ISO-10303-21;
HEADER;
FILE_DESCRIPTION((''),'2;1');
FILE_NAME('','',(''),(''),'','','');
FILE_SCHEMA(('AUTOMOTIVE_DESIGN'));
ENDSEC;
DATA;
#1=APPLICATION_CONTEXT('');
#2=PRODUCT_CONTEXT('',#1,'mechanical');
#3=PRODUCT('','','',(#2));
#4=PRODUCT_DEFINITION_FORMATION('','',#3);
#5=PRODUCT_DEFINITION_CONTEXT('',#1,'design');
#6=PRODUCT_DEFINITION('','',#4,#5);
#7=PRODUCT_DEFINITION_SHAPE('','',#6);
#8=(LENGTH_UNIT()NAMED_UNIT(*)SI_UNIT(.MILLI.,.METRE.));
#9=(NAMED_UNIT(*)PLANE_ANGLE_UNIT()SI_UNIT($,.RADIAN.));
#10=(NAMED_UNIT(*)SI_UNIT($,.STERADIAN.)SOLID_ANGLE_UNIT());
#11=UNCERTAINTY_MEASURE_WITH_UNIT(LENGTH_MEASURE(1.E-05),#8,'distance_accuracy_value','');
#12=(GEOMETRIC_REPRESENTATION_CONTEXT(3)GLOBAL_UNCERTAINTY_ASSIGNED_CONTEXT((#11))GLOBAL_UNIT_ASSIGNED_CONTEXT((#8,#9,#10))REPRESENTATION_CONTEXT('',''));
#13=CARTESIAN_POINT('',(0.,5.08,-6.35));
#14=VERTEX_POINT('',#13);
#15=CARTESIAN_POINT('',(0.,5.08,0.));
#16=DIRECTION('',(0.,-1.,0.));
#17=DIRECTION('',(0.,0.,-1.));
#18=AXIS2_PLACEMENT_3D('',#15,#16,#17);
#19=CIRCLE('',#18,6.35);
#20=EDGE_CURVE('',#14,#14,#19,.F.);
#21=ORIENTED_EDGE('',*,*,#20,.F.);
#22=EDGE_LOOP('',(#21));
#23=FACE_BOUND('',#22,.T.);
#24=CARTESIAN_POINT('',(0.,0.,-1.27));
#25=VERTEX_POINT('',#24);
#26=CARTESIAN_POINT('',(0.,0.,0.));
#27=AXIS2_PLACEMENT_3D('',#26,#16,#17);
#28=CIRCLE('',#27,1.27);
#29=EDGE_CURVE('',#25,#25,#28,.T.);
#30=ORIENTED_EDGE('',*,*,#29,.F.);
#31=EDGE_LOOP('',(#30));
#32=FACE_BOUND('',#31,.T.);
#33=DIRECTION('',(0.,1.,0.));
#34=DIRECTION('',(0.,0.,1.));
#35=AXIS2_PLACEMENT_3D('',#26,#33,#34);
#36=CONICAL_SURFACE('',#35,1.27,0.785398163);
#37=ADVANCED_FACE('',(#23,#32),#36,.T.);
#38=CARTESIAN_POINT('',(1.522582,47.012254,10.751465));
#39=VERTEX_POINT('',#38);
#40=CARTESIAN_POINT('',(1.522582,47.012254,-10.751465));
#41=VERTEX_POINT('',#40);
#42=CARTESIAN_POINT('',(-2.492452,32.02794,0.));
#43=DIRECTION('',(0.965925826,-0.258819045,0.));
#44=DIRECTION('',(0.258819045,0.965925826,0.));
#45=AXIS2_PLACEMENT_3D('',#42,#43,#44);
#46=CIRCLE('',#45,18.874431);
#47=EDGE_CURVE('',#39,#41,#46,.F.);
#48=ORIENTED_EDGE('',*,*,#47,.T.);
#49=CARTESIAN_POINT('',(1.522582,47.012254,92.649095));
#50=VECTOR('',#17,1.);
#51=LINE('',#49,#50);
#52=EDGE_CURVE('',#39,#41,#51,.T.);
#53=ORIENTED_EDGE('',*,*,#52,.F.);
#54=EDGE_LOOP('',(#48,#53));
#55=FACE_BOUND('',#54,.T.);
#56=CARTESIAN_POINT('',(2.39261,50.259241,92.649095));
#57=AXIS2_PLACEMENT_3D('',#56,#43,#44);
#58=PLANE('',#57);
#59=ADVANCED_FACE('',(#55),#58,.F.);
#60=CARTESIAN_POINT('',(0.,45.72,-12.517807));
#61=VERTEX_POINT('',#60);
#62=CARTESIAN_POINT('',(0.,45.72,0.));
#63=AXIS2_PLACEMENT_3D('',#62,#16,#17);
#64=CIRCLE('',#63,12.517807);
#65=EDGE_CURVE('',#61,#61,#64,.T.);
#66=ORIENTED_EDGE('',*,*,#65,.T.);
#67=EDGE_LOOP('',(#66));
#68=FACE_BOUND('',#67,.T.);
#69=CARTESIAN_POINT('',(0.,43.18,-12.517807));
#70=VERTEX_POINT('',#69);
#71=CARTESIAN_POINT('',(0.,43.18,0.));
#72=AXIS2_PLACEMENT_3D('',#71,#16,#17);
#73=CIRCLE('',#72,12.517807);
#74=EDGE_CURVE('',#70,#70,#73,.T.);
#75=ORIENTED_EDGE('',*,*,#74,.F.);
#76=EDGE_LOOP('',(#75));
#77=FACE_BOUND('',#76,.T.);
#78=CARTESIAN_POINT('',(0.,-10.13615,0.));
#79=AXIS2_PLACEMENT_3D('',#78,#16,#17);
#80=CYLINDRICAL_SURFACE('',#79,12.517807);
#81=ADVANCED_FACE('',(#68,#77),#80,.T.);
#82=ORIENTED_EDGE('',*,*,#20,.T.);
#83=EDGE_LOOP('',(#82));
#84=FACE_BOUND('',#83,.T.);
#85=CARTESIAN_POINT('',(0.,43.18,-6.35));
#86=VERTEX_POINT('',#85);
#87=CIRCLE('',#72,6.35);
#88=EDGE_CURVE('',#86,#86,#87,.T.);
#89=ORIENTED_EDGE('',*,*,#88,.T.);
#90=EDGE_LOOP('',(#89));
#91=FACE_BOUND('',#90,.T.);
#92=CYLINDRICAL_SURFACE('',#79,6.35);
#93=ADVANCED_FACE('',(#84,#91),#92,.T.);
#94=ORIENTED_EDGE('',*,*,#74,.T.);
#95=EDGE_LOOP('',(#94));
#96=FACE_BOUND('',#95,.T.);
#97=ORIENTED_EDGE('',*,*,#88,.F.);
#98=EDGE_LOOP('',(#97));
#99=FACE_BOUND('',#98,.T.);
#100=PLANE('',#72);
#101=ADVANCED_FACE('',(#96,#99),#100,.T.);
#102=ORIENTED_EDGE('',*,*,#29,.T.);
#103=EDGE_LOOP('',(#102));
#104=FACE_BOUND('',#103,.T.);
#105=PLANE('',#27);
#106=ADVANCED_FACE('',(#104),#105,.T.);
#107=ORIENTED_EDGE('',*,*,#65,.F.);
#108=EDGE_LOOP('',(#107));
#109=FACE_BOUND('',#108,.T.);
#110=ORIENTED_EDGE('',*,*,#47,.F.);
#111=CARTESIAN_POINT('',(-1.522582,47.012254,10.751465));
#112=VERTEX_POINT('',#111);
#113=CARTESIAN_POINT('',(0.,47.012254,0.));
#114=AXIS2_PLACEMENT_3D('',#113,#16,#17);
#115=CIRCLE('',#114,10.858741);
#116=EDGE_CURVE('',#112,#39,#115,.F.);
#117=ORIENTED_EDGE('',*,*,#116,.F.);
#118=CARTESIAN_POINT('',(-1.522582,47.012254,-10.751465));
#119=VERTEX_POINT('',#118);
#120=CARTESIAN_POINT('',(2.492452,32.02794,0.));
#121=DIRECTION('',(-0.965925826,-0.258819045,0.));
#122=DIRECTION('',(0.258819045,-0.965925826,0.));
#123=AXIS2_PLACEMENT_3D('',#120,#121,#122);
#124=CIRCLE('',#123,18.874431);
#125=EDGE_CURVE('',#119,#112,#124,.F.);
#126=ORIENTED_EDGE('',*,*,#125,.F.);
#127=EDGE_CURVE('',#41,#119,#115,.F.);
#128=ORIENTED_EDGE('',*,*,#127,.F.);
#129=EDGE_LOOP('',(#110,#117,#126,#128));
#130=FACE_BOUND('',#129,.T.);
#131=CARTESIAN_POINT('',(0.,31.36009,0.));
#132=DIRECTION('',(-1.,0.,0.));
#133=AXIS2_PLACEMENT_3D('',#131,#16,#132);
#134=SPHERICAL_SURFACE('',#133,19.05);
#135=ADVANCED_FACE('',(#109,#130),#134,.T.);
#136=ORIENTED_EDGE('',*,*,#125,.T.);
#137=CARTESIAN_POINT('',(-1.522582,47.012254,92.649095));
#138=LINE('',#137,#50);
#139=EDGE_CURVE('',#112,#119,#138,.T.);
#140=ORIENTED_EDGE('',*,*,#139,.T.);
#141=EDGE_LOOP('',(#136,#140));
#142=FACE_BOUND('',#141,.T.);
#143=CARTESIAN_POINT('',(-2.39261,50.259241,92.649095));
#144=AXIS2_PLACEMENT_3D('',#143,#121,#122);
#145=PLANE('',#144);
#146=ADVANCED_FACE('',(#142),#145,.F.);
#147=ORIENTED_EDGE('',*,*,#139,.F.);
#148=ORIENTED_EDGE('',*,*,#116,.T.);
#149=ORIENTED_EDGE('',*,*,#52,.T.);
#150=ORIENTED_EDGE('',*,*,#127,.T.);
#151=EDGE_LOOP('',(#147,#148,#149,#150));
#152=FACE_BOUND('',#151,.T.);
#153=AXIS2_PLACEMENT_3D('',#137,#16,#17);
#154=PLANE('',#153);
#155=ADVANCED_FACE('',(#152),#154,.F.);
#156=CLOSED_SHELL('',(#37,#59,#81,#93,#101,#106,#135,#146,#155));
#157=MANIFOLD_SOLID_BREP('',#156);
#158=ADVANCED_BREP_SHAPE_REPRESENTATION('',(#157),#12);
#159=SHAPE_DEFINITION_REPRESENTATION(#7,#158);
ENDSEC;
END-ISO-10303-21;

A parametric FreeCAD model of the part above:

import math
import FreeCAD as App
import Part
import Sketcher
Q = App.Units.Quantity


def edges_at(feature, points):
    """Names of the edges that pass closest to the given points."""
    edges = feature.Shape.Edges
    near = lambda p: min(range(len(edges)), key=lambda i: edges[i].distToShape(Part.Vertex(*p))[0])
    return sorted({f"Edge{near(p) + 1}" for p in points})


def add_polygon(sketch, points):
    """Adds a closed chain of lines whose ends are joined by coincident constraints."""
    first, n = sketch.GeometryCount, len(points)
    for a, b in zip(points, points[1:] + points[:1]):
        sketch.addGeometry(Part.LineSegment(App.Vector(*a, 0), App.Vector(*b, 0)), False)
    for i in range(n):
        sketch.addConstraint(Sketcher.Constraint("Coincident", first + i, 2, first + (i + 1) % n, 1))

doc = App.newDocument("Part")
body = doc.addObject("PartDesign::Body", "Body")

# Sketch on XY plane
sketch1 = doc.addObject("Sketcher::SketchObject", "Sketch")
body.addObject(sketch1)
sketch1.AttachmentSupport = (doc.XY_Plane, [""])
sketch1.MapMode = "FlatFace"
sketch1.addGeometry([
    Part.LineSegment(App.Vector(-6.35, 43.18, 0), App.Vector(-6.35, 0, 0)),  # 0
    Part.LineSegment(App.Vector(-6.35, 0, 0), App.Vector(0, 0, 0)),  # 1
    Part.LineSegment(App.Vector(0, 0, 0), App.Vector(0, 50.41009, 0)),  # 2
    Part.ArcOfCircle(Part.Circle(App.Vector(0.000002, 31.360084, 0), App.Vector(0, 0, 1), 19.050006), math.radians(90.000006), math.radians(131.079275)),  # 3
    Part.LineSegment(App.Vector(-12.517807, 45.72, 0), App.Vector(-12.517807, 43.18, 0)),  # 4
    Part.LineSegment(App.Vector(-12.517807, 43.18, 0), App.Vector(-6.35, 43.18, 0)),  # 5
], False)
sketch1.addConstraint([
    Sketcher.Constraint("Coincident", 0, 2, 1, 1),
    Sketcher.Constraint("Coincident", 1, 2, 2, 1),
    Sketcher.Constraint("Coincident", 2, 2, 3, 1),
    Sketcher.Constraint("Coincident", 3, 2, 4, 1),
    Sketcher.Constraint("Coincident", 4, 2, 5, 1),
    Sketcher.Constraint("Coincident", 5, 2, 0, 1),
    Sketcher.Constraint("Vertical", 0),
    Sketcher.Constraint("Horizontal", 1),
    Sketcher.Constraint("Vertical", 2),
    Sketcher.Constraint("Vertical", 4),
    Sketcher.Constraint("Horizontal", 5),
    Sketcher.Constraint("Coincident", 1, 2, -1, 1),
    Sketcher.Constraint("DistanceY", 0, 2, 0, 1, Q("1.7 in")),
    Sketcher.Constraint("DistanceY", 4, 2, 4, 1, Q("0.1 in")),
    Sketcher.Constraint("DistanceX", 1, 1, 1, 2, Q("0.25 in")),
    Sketcher.Constraint("DistanceX", 0, 2, 3, 3, Q("0.2500001 in")),
    Sketcher.Constraint("Radius", 3, Q("19.050006 mm")),
    Sketcher.Constraint("DistanceY", 2, 1, 2, 2, Q("50.41009 mm")),
])
revolution = doc.addObject("PartDesign::Revolution", "Revolution")
body.addObject(revolution)
revolution.Profile = sketch1
revolution.ReferenceAxis = (sketch1, ["V_Axis"])
revolution.Angle = 360
doc.recompute()

chamfer = doc.addObject("PartDesign::Chamfer", "Chamfer")
body.addObject(chamfer)
chamfer.Base = (revolution, edges_at(revolution, [(6.35, 0, 0)]))
chamfer.Size = Q("0.2 in")

# Sketch on XY plane
sketch2 = doc.addObject("Sketcher::SketchObject", "Sketch001")
body.addObject(sketch2)
sketch2.AttachmentSupport = (doc.XY_Plane, [""])
sketch2.MapMode = "FlatFace"
add_polygon(sketch2, [(-32.117638, 161.194555), (-2.39261, 50.259241), (-1.522582, 47.012254), (1.522582, 47.012254), (2.39261, 50.259241), (32.117638, 161.194555), (32.117638, 390.891931), (-32.117638, 390.891931)])  # lines 0-7
sketch2.addConstraint([
    Sketcher.Constraint("Horizontal", 2),
    Sketcher.Constraint("Vertical", 5),
    Sketcher.Constraint("Horizontal", 6),
    Sketcher.Constraint("Vertical", 7),
    Sketcher.Constraint("Symmetric", 0, 2, 3, 2, -2),
    Sketcher.Constraint("Symmetric", 4, 2, 7, 2, -2),
    Sketcher.Constraint("Parallel", 0, 1),
    Sketcher.Constraint("Parallel", 3, 4),
    Sketcher.Constraint("Angle", 0, Q("-75 deg")),
    Sketcher.Constraint("DistanceY", 2, 2, 4, 2, Q("114.182301 mm")),
    Sketcher.Constraint("Distance", 0, Q("114.848688 mm")),
    Sketcher.Constraint("DistanceX", 2, 1, 2, 2, Q("3.045164 mm")),
    Sketcher.Constraint("DistanceY", 5, 1, 5, 2, Q("229.697376 mm")),
    Sketcher.Constraint("DistanceY", -1, 1, 0, 2, Q("50.259241 mm")),
])
pocket1 = doc.addObject("PartDesign::Pocket", "Pocket")
body.addObject(pocket1)
pocket1.Profile = sketch2
pocket1.Type = "ThroughAll"
pocket1.Midplane = True

doc.recompute()
